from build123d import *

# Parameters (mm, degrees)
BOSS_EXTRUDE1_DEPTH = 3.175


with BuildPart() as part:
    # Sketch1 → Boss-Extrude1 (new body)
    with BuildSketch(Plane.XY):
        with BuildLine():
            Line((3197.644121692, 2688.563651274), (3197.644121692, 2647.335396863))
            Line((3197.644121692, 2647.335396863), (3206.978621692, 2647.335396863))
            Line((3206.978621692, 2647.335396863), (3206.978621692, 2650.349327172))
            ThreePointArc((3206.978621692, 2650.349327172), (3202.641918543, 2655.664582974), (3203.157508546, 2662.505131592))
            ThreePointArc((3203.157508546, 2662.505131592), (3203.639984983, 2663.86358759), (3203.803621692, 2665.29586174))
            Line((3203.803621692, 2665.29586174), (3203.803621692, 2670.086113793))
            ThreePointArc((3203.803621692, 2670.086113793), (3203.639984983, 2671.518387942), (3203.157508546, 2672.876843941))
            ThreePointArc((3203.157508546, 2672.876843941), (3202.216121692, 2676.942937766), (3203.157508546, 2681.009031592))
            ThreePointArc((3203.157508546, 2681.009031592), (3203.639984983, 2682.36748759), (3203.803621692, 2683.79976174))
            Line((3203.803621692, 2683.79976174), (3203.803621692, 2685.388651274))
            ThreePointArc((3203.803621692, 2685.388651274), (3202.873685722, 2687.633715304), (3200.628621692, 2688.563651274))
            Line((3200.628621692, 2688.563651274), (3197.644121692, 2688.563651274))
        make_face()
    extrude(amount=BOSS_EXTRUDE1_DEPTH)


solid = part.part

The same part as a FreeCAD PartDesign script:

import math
import FreeCAD as App
import Part
import Sketcher
from FreeCAD import Vector
Q = App.Units.Quantity

doc = App.newDocument("Part")
body = doc.addObject("PartDesign::Body", "Body")

sketch1 = body.newObject("Sketcher::SketchObject", "Sketch")
sketch1.AttachmentSupport = (doc.getObject("XY_Plane"), [""])
sketch1.MapMode = "FlatFace"
sketch1.addGeometry(Part.LineSegment(Vector(3197.6, 2688.6, 0), Vector(3197.6, 2647.3, 0)), False)
sketch1.addGeometry(Part.LineSegment(Vector(3197.6, 2647.3, 0), Vector(3207, 2647.3, 0)), False)
sketch1.addGeometry(Part.LineSegment(Vector(3207, 2647.3, 0), Vector(3207, 2650.3, 0)), False)
sketch1.addGeometry(Part.ArcOfCircle(Part.Circle(Vector(3211.5, 2658.4, 0), Vector(0, 0, 1), 9.3), math.radians(154), math.radians(241)), False)
sketch1.addGeometry(Part.ArcOfCircle(Part.Circle(Vector(3197.5, 2665.3, 0), Vector(0, 0, 1), 6.3), math.radians(-26), math.radians(0)), False)
sketch1.addGeometry(Part.LineSegment(Vector(3203.8, 2665.3, 0), Vector(3203.8, 2670.1, 0)), False)
sketch1.addGeometry(Part.ArcOfCircle(Part.Circle(Vector(3197.5, 2670.1, 0), Vector(0, 0, 1), 6.3), math.radians(0), math.radians(26)), False)
sketch1.addGeometry(Part.ArcOfCircle(Part.Circle(Vector(3211.5, 2676.9, 0), Vector(0, 0, 1), 9.3), math.radians(154), math.radians(206)), False)
sketch1.addGeometry(Part.ArcOfCircle(Part.Circle(Vector(3197.5, 2683.8, 0), Vector(0, 0, 1), 6.3), math.radians(-26), math.radians(0)), False)
sketch1.addGeometry(Part.LineSegment(Vector(3203.8, 2683.8, 0), Vector(3203.8, 2685.4, 0)), False)
sketch1.addGeometry(Part.ArcOfCircle(Part.Circle(Vector(3200.6, 2685.4, 0), Vector(0, 0, 1), 3.2), math.radians(0), math.radians(90)), False)
sketch1.addGeometry(Part.LineSegment(Vector(3200.6, 2688.6, 0), Vector(3197.6, 2688.6, 0)), False)
sketch1.addConstraint(Sketcher.Constraint("Coincident", 0, 2, 1, 1))
sketch1.addConstraint(Sketcher.Constraint("Coincident", 1, 2, 2, 1))
sketch1.addConstraint(Sketcher.Constraint("Coincident", 2, 2, 3, 2))
sketch1.addConstraint(Sketcher.Constraint("Tangent", 3, 1, 4, 1))
sketch1.addConstraint(Sketcher.Constraint("Tangent", 4, 2, 5, 1))
sketch1.addConstraint(Sketcher.Constraint("Tangent", 5, 2, 6, 1))
sketch1.addConstraint(Sketcher.Constraint("Tangent", 6, 2, 7, 2))
sketch1.addConstraint(Sketcher.Constraint("Tangent", 7, 1, 8, 1))
sketch1.addConstraint(Sketcher.Constraint("Tangent", 8, 2, 9, 1))
sketch1.addConstraint(Sketcher.Constraint("Tangent", 9, 2, 10, 1))
sketch1.addConstraint(Sketcher.Constraint("Tangent", 10, 2, 11, 1))
sketch1.addConstraint(Sketcher.Constraint("Coincident", 11, 2, 0, 1))
sketch1.addConstraint(Sketcher.Constraint("Vertical", 0))
sketch1.addConstraint(Sketcher.Constraint("Horizontal", 1))
sketch1.addConstraint(Sketcher.Constraint("Vertical", 2))
sketch1.addConstraint(Sketcher.Constraint("Vertical", 5))
sketch1.addConstraint(Sketcher.Constraint("Vertical", 9))
sketch1.addConstraint(Sketcher.Constraint("Horizontal", 11))
sketch1.addConstraint(Sketcher.Constraint("Equal", 4, 6))
sketch1.addConstraint(Sketcher.Constraint("Equal", 3, 7))
sketch1.addConstraint(Sketcher.Constraint("Equal", 6, 8))
sketch1.addConstraint(Sketcher.Constraint("Vertical", 3, 3, 7, 3))
sketch1.addConstraint(Sketcher.Constraint("Vertical", 6, 3, 8, 3))
sketch1.addConstraint(Sketcher.Constraint("Radius", 4, Q("0.25 in")))
sketch1.addConstraint(Sketcher.Constraint("Radius", 10, Q("0.125 in")))
sketch1.addConstraint(Sketcher.Constraint("DistanceX", 1, 1, 1, 2, Q("0.3675 in")))
sketch1.addConstraint(Sketcher.Constraint("DistanceX", 11, 2, 11, 1, Q("0.1175 in")))
sketch1.addConstraint(Sketcher.Constraint("Radius", 3, Q("9.25195 mm")))
sketch1.addConstraint(Sketcher.Constraint("DistanceY", 3, 3, 7, 3, Q("0.7285 in")))
sketch1.addConstraint(Sketcher.Constraint("DistanceY", 2, 1, 2, 2, Q("3.01393 mm")))
sketch1.addConstraint(Sketcher.Constraint("DistanceY", 9, 1, 9, 2, Q("1.58889 mm")))
sketch1.addConstraint(Sketcher.Constraint("DistanceY", 0, 2, 0, 1, Q("41.228254 mm")))
sketch1.addConstraint(Sketcher.Constraint("DistanceX", -1, 1, 3, 3, Q("3211.468072 mm")))
sketch1.addConstraint(Sketcher.Constraint("DistanceY", -1, 1, 4, 3, Q("2665.295862 mm")))
pad1 = body.newObject("PartDesign::Pad", "Pad")
pad1.Profile = sketch1
pad1.Length = Q("0.125 in")

doc.recompute()
